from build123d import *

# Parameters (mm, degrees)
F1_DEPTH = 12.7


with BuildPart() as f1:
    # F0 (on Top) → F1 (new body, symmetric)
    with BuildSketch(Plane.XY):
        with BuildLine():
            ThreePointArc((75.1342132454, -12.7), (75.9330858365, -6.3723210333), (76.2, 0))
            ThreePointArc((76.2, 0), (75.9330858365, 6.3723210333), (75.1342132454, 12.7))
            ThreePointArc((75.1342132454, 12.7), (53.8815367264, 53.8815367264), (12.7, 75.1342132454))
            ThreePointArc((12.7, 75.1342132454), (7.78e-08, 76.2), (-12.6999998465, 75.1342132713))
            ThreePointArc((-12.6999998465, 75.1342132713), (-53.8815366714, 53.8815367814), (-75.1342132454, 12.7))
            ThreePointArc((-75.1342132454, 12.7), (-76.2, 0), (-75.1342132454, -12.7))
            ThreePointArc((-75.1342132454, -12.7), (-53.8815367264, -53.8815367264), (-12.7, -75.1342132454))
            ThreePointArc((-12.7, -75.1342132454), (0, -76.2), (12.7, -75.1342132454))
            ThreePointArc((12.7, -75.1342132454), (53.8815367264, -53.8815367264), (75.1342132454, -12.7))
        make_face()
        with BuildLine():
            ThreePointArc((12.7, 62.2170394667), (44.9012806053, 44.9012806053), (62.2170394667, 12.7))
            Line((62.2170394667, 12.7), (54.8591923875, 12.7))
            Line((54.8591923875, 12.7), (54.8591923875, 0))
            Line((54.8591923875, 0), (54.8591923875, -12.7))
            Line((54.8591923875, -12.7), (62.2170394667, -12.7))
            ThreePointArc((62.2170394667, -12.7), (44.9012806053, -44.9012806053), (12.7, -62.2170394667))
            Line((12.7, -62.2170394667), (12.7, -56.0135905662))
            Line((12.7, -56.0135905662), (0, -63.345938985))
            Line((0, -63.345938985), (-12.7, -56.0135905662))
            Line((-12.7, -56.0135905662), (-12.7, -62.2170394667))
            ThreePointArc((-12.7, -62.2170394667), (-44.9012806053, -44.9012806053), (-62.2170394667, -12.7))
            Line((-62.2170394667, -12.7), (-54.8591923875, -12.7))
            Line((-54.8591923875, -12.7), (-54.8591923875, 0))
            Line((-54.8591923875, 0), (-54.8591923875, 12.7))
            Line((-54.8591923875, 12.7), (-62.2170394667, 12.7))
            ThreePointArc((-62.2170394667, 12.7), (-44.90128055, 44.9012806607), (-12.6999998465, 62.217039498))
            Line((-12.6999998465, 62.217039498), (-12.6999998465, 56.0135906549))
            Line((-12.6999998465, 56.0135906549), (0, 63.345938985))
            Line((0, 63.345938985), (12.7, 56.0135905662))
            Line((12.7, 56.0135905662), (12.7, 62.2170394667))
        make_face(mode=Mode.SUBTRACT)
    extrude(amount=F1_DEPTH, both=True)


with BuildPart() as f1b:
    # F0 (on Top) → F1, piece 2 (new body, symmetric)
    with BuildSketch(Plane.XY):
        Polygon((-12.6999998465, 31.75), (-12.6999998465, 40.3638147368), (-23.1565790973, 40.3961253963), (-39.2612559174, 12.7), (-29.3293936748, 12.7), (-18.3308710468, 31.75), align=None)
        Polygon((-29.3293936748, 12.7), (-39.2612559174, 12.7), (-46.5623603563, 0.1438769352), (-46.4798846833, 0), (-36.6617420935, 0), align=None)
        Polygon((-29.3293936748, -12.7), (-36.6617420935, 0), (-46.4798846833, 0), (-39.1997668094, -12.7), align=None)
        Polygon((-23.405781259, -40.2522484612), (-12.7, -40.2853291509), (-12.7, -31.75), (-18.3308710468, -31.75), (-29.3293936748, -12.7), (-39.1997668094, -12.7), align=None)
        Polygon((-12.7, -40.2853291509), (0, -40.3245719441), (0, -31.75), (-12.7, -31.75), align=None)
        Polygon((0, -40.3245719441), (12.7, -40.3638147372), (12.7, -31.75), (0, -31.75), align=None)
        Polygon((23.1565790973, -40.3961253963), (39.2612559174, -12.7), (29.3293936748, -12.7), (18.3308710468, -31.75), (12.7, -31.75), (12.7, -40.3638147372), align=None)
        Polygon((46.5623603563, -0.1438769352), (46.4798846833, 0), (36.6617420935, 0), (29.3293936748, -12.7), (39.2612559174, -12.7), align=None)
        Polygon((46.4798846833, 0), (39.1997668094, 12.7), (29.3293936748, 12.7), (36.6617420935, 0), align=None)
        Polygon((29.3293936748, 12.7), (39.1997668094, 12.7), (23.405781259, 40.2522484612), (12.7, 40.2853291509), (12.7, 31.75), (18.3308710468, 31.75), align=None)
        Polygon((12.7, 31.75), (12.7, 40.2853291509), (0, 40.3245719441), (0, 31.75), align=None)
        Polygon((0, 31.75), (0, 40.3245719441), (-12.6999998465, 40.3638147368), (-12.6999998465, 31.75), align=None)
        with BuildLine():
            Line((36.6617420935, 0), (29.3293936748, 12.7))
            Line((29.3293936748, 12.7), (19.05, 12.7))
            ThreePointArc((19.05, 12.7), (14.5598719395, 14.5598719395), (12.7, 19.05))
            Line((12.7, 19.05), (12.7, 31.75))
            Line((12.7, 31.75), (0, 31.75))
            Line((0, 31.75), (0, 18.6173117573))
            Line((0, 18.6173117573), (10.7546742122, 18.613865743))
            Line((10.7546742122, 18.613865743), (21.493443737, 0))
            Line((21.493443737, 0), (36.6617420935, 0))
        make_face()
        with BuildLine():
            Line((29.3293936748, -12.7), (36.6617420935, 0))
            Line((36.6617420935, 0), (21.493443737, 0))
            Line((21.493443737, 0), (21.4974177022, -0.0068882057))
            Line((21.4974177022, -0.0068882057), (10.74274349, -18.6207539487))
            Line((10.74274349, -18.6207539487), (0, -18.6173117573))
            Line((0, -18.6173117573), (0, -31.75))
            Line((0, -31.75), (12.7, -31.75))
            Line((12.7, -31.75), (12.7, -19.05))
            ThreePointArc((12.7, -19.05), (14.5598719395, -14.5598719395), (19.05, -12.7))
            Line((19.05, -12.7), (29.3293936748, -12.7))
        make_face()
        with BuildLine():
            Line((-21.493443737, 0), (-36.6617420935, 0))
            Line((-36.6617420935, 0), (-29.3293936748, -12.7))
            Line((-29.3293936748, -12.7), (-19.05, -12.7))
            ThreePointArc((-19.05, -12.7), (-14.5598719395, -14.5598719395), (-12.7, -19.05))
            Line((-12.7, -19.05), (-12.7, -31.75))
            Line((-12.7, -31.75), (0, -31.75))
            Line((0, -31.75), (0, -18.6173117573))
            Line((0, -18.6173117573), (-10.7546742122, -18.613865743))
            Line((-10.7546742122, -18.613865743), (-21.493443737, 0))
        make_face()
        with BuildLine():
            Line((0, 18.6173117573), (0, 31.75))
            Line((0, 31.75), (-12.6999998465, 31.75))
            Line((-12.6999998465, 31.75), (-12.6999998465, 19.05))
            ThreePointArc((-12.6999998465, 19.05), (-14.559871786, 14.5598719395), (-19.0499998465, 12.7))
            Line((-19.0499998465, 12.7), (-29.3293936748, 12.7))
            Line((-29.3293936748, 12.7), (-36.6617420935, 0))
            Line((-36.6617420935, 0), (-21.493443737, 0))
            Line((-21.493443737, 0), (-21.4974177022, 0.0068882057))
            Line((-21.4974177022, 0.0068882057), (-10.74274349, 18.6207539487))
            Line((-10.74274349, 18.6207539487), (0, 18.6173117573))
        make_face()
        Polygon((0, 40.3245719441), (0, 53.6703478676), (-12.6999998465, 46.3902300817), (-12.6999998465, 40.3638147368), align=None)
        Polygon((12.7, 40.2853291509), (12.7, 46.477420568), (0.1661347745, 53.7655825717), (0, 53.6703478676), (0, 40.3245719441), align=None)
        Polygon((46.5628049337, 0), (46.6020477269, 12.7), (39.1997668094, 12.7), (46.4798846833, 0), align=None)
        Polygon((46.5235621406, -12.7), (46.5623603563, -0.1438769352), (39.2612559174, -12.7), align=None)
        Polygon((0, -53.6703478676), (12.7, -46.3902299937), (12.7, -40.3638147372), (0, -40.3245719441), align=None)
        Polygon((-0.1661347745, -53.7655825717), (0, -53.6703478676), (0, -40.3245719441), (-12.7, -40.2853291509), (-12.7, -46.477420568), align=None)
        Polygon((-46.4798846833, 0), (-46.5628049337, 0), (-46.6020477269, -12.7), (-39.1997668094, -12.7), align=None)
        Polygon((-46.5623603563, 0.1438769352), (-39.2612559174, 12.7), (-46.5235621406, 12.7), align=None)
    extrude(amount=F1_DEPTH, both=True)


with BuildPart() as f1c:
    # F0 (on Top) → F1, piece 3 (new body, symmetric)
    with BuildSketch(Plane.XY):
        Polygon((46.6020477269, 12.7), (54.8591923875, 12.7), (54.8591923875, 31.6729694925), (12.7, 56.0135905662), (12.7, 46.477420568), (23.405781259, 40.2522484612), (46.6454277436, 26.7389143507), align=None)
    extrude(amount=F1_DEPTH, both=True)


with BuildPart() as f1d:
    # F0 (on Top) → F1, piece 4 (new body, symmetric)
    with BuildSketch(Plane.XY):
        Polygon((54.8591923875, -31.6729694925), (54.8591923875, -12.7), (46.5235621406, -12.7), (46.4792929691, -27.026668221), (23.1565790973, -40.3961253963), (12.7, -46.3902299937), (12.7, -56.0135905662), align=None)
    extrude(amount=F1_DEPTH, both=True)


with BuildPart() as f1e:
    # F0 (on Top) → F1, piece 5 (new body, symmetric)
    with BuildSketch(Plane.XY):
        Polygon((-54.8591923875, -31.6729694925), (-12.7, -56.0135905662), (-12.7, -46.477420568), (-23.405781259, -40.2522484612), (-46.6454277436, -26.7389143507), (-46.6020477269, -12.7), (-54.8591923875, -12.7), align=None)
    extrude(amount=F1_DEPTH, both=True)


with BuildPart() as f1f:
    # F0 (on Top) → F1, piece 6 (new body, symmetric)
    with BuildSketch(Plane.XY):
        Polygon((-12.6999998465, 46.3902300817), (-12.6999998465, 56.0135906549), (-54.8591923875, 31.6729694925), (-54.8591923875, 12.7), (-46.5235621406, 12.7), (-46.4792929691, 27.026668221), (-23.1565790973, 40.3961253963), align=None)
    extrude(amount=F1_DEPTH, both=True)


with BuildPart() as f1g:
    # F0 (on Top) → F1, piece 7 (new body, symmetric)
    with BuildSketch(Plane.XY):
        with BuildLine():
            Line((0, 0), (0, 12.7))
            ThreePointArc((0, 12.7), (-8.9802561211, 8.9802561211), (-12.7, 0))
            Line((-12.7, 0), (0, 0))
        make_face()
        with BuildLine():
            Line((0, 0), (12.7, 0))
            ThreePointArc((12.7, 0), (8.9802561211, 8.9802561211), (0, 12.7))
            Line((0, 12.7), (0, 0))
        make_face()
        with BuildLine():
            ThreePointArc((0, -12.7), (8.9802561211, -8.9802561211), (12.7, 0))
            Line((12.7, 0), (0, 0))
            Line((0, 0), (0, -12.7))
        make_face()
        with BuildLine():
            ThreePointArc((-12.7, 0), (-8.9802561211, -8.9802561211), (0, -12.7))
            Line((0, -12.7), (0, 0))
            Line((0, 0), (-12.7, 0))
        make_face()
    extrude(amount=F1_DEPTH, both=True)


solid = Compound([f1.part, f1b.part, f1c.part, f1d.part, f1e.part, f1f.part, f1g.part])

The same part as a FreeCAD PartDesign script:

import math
import FreeCAD as App
import Part
import Sketcher

V = App.Vector
Q = App.Units.Quantity

doc = App.newDocument("Part")
body = doc.addObject("PartDesign::Body", "Body")

sketch1 = body.newObject("Sketcher::SketchObject", "Sketch")
sketch1.AttachmentSupport = (doc.getObject("XY_Plane"), [""])
sketch1.MapMode = "FlatFace"
sketch1.addGeometry([
    Part.ArcOfCircle(Part.Circle(V(0, 0, 0), V(0, 0, 1), 76), math.radians(0), math.radians(80)),
    Part.ArcOfCircle(Part.Circle(V(0, 0, 0), V(0, 0, 1), 76), math.radians(80), math.radians(170)),
    Part.ArcOfCircle(Part.Circle(V(0, 0, 0), V(0, 0, 1), 76), math.radians(170.41), math.radians(189.59)),
    Part.ArcOfCircle(Part.Circle(V(0, 0, 0), V(0, 0, 1), 76), math.radians(-170), math.radians(-100)),
    Part.ArcOfCircle(Part.Circle(V(0, 0, 0), V(0, 0, 1), 76), math.radians(-99.59), math.radians(-80.41)),
    Part.ArcOfCircle(Part.Circle(V(0, 0, 0), V(0, 0, 1), 76), math.radians(-80), math.radians(0)),
    Part.LineSegment(V(13, 56, 0), V(13, 62, 0)),
    Part.ArcOfCircle(Part.Circle(V(0, 0, 0), V(0, 0, 1), 64), math.radians(12), math.radians(78)),
    Part.LineSegment(V(62, 13, 0), V(55, 13, 0)),
    Part.LineSegment(V(55, 13, 0), V(55, -13, 0)),
    Part.LineSegment(V(55, -13, 0), V(62, -13, 0)),
    Part.ArcOfCircle(Part.Circle(V(0, 0, 0), V(0, 0, 1), 64), math.radians(-78), math.radians(-12)),
    Part.LineSegment(V(13, -62, 0), V(13, -56, 0)),
    Part.LineSegment(V(13, -56, 0), V(0, -63, 0)),
    Part.LineSegment(V(0, -63, 0), V(-13, -56, 0)),
    Part.LineSegment(V(-13, -56, 0), V(-13, -62, 0)),
    Part.ArcOfCircle(Part.Circle(V(0, 0, 0), V(0, 0, 1), 64), math.radians(-168), math.radians(-102)),
    Part.LineSegment(V(-62, -13, 0), V(-55, -13, 0)),
    Part.LineSegment(V(-55, -13, 0), V(-55, 13, 0)),
    Part.LineSegment(V(-55, 13, 0), V(-62, 13, 0)),
    Part.ArcOfCircle(Part.Circle(V(0, 0, 0), V(0, 0, 1), 64), math.radians(102), math.radians(168)),
    Part.LineSegment(V(-13, 62, 0), V(-13, 56, 0)),
    Part.LineSegment(V(-13, 56, 0), V(0, 63, 0)),
    Part.LineSegment(V(0, 63, 0), V(13, 56, 0)),
], False)
sketch1.addConstraint([
    Sketcher.Constraint("Tangent", 0, 2, 1, 1),
    Sketcher.Constraint("Tangent", 1, 2, 2, 1),
    Sketcher.Constraint("Tangent", 2, 2, 3, 1),
    Sketcher.Constraint("Tangent", 3, 2, 4, 1),
    Sketcher.Constraint("Tangent", 4, 2, 5, 1),
    Sketcher.Constraint("Tangent", 5, 2, 0, 1),
    Sketcher.Constraint("Coincident", 6, 2, 7, 2),
    Sketcher.Constraint("Coincident", 7, 1, 8, 1),
    Sketcher.Constraint("Coincident", 8, 2, 9, 1),
    Sketcher.Constraint("Coincident", 9, 2, 10, 1),
    Sketcher.Constraint("Coincident", 10, 2, 11, 2),
    Sketcher.Constraint("Coincident", 11, 1, 12, 1),
    Sketcher.Constraint("Coincident", 12, 2, 13, 1),
    Sketcher.Constraint("Coincident", 13, 2, 14, 1),
    Sketcher.Constraint("Coincident", 14, 2, 15, 1),
    Sketcher.Constraint("Coincident", 15, 2, 16, 2),
    Sketcher.Constraint("Coincident", 16, 1, 17, 1),
    Sketcher.Constraint("Coincident", 17, 2, 18, 1),
    Sketcher.Constraint("Coincident", 18, 2, 19, 1),
    Sketcher.Constraint("Coincident", 19, 2, 20, 2),
    Sketcher.Constraint("Coincident", 20, 1, 21, 1),
    Sketcher.Constraint("Coincident", 21, 2, 22, 1),
    Sketcher.Constraint("Coincident", 22, 2, 23, 1),
    Sketcher.Constraint("Coincident", 23, 2, 6, 1),
    Sketcher.Constraint("Vertical", 6),
    Sketcher.Constraint("Horizontal", 8),
    Sketcher.Constraint("Vertical", 9),
    Sketcher.Constraint("Horizontal", 10),
    Sketcher.Constraint("Vertical", 12),
    Sketcher.Constraint("Vertical", 15),
    Sketcher.Constraint("Horizontal", 17),
    Sketcher.Constraint("Vertical", 18),
    Sketcher.Constraint("Horizontal", 19),
    Sketcher.Constraint("Vertical", 21),
    Sketcher.Constraint("Coincident", 0, 3, -1, 1),
    Sketcher.Constraint("Coincident", 2, 3, -1, 1),
    Sketcher.Constraint("Coincident", 7, 3, -1, 1),
    Sketcher.Constraint("Coincident", 11, 3, -1, 1),
    Sketcher.Constraint("Coincident", 16, 3, -1, 1),
    Sketcher.Constraint("Coincident", 20, 3, -1, 1),
    Sketcher.Constraint("Equal", 2, 3),
    Sketcher.Constraint("Equal", 7, 11),
    Sketcher.Constraint("Equal", 11, 16),
    Sketcher.Constraint("Equal", 16, 20),
    Sketcher.Constraint("Symmetric", 8, 2, 17, 2, -1, 1),
    Sketcher.Constraint("Symmetric", 12, 2, 21, 2, -1, 1),
    Sketcher.Constraint("Symmetric", 13, 2, 22, 2, -1, 1),
    Sketcher.Constraint("Symmetric", 14, 2, 23, 2, -1, 1),
    Sketcher.Constraint("Symmetric", 12, 2, 14, 2, -2),
    Sketcher.Constraint("PointOnObject", 5, 2, -1),
    Sketcher.Constraint("PointOnObject", 13, 2, -2),
    Sketcher.Constraint("Horizontal", 3, 2, 4, 2),
    Sketcher.Constraint("Horizontal", 1, 2, 7, 1),
    Sketcher.Constraint("Horizontal", 2, 2, 9, 2),
    Sketcher.Constraint("Horizontal", 10, 2, 16, 1),
    Sketcher.Constraint("Horizontal", 8, 2, 18, 2),
    Sketcher.Constraint("Vertical", 0, 2, 4, 2),
    Sketcher.Constraint("Vertical", 4, 2, 6, 2),
    Sketcher.Constraint("Radius", 0, Q("3 in")),
    Sketcher.Constraint("Radius", 7, Q("2.5 in")),
    Sketcher.Constraint("DistanceY", 9, 2, 9, 1, Q("1 in")),
    Sketcher.Constraint("Angle", 13, Q("-150 deg")),
    Sketcher.Constraint("DistanceX", 3, 2, 4, 2, Q("1 in")),
    Sketcher.Constraint("DistanceY", 6, 1, 6, 2, Q("6.203449 mm")),
    Sketcher.Constraint("DistanceX", 8, 2, 8, 1, Q("7.357847 mm")),
])
pad1 = body.newObject("PartDesign::Pad", "Pad")
pad1.Profile = sketch1
pad1.Length = Q("1 in")
pad1.Midplane = True
body2 = doc.addObject("PartDesign::Body", "Body001")

sketch2 = body2.newObject("Sketcher::SketchObject", "Sketch001")
sketch2.AttachmentSupport = (doc.getObject("XY_Plane001"), [""])
sketch2.MapMode = "FlatFace"
sketch2.addGeometry([
    Part.LineSegment(V(-12.7, 40.364, 0), V(-23.157, 40.396, 0)),
    Part.LineSegment(V(-23.157, 40.396, 0), V(-39.261, 12.7, 0)),
    Part.LineSegment(V(-39.261, 12.7, 0), V(-46.524, 12.7, 0)),
    Part.LineSegment(V(-46.524, 12.7, 0), V(-46.562, 0.144, 0)),
    Part.LineSegment(V(-46.562, 0.144, 0), V(-46.48, 0, 0)),
    Part.LineSegment(V(-46.48, 0, 0), V(-46.563, 0, 0)),
    Part.LineSegment(V(-46.563, 0, 0), V(-46.602, -12.7, 0)),
    Part.LineSegment(V(-46.602, -12.7, 0), V(-39.2, -12.7, 0)),
    Part.LineSegment(V(-39.2, -12.7, 0), V(-23.406, -40.252, 0)),
    Part.LineSegment(V(-23.406, -40.252, 0), V(-12.7, -40.285, 0)),
    Part.LineSegment(V(-12.7, -40.285, 0), V(-12.7, -46.477, 0)),
    Part.LineSegment(V(-12.7, -46.477, 0), V(-0.166, -53.766, 0)),
    Part.LineSegment(V(-0.166, -53.766, 0), V(0, -53.67, 0)),
    Part.LineSegment(V(0, -53.67, 0), V(12.7, -46.39, 0)),
    Part.LineSegment(V(12.7, -46.39, 0), V(12.7, -40.364, 0)),
    Part.LineSegment(V(12.7, -40.364, 0), V(23.157, -40.396, 0)),
    Part.LineSegment(V(23.157, -40.396, 0), V(39.261, -12.7, 0)),
    Part.LineSegment(V(39.261, -12.7, 0), V(46.524, -12.7, 0)),
    Part.LineSegment(V(46.524, -12.7, 0), V(46.562, -0.144, 0)),
    Part.LineSegment(V(46.562, -0.144, 0), V(46.48, 0, 0)),
    Part.LineSegment(V(46.48, 0, 0), V(46.563, 0, 0)),
    Part.LineSegment(V(46.563, 0, 0), V(46.602, 12.7, 0)),
    Part.LineSegment(V(46.602, 12.7, 0), V(39.2, 12.7, 0)),
    Part.LineSegment(V(39.2, 12.7, 0), V(23.406, 40.252, 0)),
    Part.LineSegment(V(23.406, 40.252, 0), V(12.7, 40.285, 0)),
    Part.LineSegment(V(12.7, 40.285, 0), V(12.7, 46.477, 0)),
    Part.LineSegment(V(12.7, 46.477, 0), V(0.166, 53.766, 0)),
    Part.LineSegment(V(0.166, 53.766, 0), V(0, 53.67, 0)),
    Part.LineSegment(V(0, 53.67, 0), V(-12.7, 46.39, 0)),
    Part.LineSegment(V(-12.7, 46.39, 0), V(-12.7, 40.364, 0)),
    Part.LineSegment(V(18.331, 31.75, 0), V(29.329, 12.7, 0)),
    Part.LineSegment(V(29.329, 12.7, 0), V(19.05, 12.7, 0)),
    Part.ArcOfCircle(Part.Circle(V(19.05, 19.05, 0), V(0, 0, 1), 6.35), math.radians(180), math.radians(270)),
    Part.LineSegment(V(12.7, 19.05, 0), V(12.7, 31.75, 0)),
    Part.LineSegment(V(12.7, 31.75, 0), V(18.331, 31.75, 0)),
    Part.LineSegment(V(29.329, -12.7, 0), V(18.331, -31.75, 0)),
    Part.LineSegment(V(18.331, -31.75, 0), V(12.7, -31.75, 0)),
    Part.LineSegment(V(12.7, -31.75, 0), V(12.7, -19.05, 0)),
    Part.ArcOfCircle(Part.Circle(V(19.05, -19.05, 0), V(0, 0, 1), 6.35), math.radians(90), math.radians(180)),
    Part.LineSegment(V(19.05, -12.7, 0), V(29.329, -12.7, 0)),
    Part.LineSegment(V(-12.7, -31.75, 0), V(-18.331, -31.75, 0)),
    Part.LineSegment(V(-18.331, -31.75, 0), V(-29.329, -12.7, 0)),
    Part.LineSegment(V(-29.329, -12.7, 0), V(-19.05, -12.7, 0)),
    Part.ArcOfCircle(Part.Circle(V(-19.05, -19.05, 0), V(0, 0, 1), 6.35), math.radians(0), math.radians(90)),
    Part.LineSegment(V(-12.7, -19.05, 0), V(-12.7, -31.75, 0)),
    Part.LineSegment(V(-29.329, 12.7, 0), V(-18.331, 31.75, 0)),
    Part.LineSegment(V(-18.331, 31.75, 0), V(-12.7, 31.75, 0)),
    Part.LineSegment(V(-12.7, 31.75, 0), V(-12.7, 19.05, 0)),
    Part.ArcOfCircle(Part.Circle(V(-19.05, 19.05, 0), V(0, 0, 1), 6.35), math.radians(-90), math.radians(0)),
    Part.LineSegment(V(-19.05, 12.7, 0), V(-29.329, 12.7, 0)),
    Part.LineSegment(V(0, 18.617, 0), V(10.755, 18.614, 0)),
    Part.LineSegment(V(10.755, 18.614, 0), V(21.493, 0, 0)),
    Part.LineSegment(V(21.493, 0, 0), V(21.497, -0.007, 0)),
    Part.LineSegment(V(21.497, -0.007, 0), V(10.743, -18.621, 0)),
    Part.LineSegment(V(10.743, -18.621, 0), V(0, -18.617, 0)),
    Part.LineSegment(V(0, -18.617, 0), V(-10.755, -18.614, 0)),
    Part.LineSegment(V(-10.755, -18.614, 0), V(-21.493, 0, 0)),
    Part.LineSegment(V(-21.493, 0, 0), V(-21.497, 0.007, 0)),
    Part.LineSegment(V(-21.497, 0.007, 0), V(-10.743, 18.621, 0)),
    Part.LineSegment(V(-10.743, 18.621, 0), V(0, 18.617, 0)),
], False)
sketch2.addConstraint([
    Sketcher.Constraint("Coincident", 0, 2, 1, 1),
    Sketcher.Constraint("Coincident", 1, 2, 2, 1),
    Sketcher.Constraint("Coincident", 2, 2, 3, 1),
    Sketcher.Constraint("Coincident", 3, 2, 4, 1),
    Sketcher.Constraint("Coincident", 4, 2, 5, 1),
    Sketcher.Constraint("Coincident", 5, 2, 6, 1),
    Sketcher.Constraint("Coincident", 6, 2, 7, 1),
    Sketcher.Constraint("Coincident", 7, 2, 8, 1),
    Sketcher.Constraint("Coincident", 8, 2, 9, 1),
    Sketcher.Constraint("Coincident", 9, 2, 10, 1),
    Sketcher.Constraint("Coincident", 10, 2, 11, 1),
    Sketcher.Constraint("Coincident", 11, 2, 12, 1),
    Sketcher.Constraint("Coincident", 12, 2, 13, 1),
    Sketcher.Constraint("Coincident", 13, 2, 14, 1),
    Sketcher.Constraint("Coincident", 14, 2, 15, 1),
    Sketcher.Constraint("Coincident", 15, 2, 16, 1),
    Sketcher.Constraint("Coincident", 16, 2, 17, 1),
    Sketcher.Constraint("Coincident", 17, 2, 18, 1),
    Sketcher.Constraint("Coincident", 18, 2, 19, 1),
    Sketcher.Constraint("Coincident", 19, 2, 20, 1),
    Sketcher.Constraint("Coincident", 20, 2, 21, 1),
    Sketcher.Constraint("Coincident", 21, 2, 22, 1),
    Sketcher.Constraint("Coincident", 22, 2, 23, 1),
    Sketcher.Constraint("Coincident", 23, 2, 24, 1),
    Sketcher.Constraint("Coincident", 24, 2, 25, 1),
    Sketcher.Constraint("Coincident", 25, 2, 26, 1),
    Sketcher.Constraint("Coincident", 26, 2, 27, 1),
    Sketcher.Constraint("Coincident", 27, 2, 28, 1),
    Sketcher.Constraint("Coincident", 28, 2, 29, 1),
    Sketcher.Constraint("Coincident", 29, 2, 0, 1),
    Sketcher.Constraint("Coincident", 30, 2, 31, 1),
    Sketcher.Constraint("Tangent", 31, 2, 32, 2),
    Sketcher.Constraint("Tangent", 32, 1, 33, 1),
    Sketcher.Constraint("Coincident", 33, 2, 34, 1),
    Sketcher.Constraint("Coincident", 34, 2, 30, 1),
    Sketcher.Constraint("Coincident", 35, 2, 36, 1),
    Sketcher.Constraint("Coincident", 36, 2, 37, 1),
    Sketcher.Constraint("Tangent", 37, 2, 38, 2),
    Sketcher.Constraint("Tangent", 38, 1, 39, 1),
    Sketcher.Constraint("Coincident", 39, 2, 35, 1),
    Sketcher.Constraint("Coincident", 40, 2, 41, 1),
    Sketcher.Constraint("Coincident", 41, 2, 42, 1),
    Sketcher.Constraint("Tangent", 42, 2, 43, 2),
    Sketcher.Constraint("Tangent", 43, 1, 44, 1),
    Sketcher.Constraint("Coincident", 44, 2, 40, 1),
    Sketcher.Constraint("Coincident", 45, 2, 46, 1),
    Sketcher.Constraint("Coincident", 46, 2, 47, 1),
    Sketcher.Constraint("Tangent", 47, 2, 48, 2),
    Sketcher.Constraint("Tangent", 48, 1, 49, 1),
    Sketcher.Constraint("Coincident", 49, 2, 45, 1),
    Sketcher.Constraint("Coincident", 50, 2, 51, 1),
    Sketcher.Constraint("Coincident", 51, 2, 52, 1),
    Sketcher.Constraint("Coincident", 52, 2, 53, 1),
    Sketcher.Constraint("Coincident", 53, 2, 54, 1),
    Sketcher.Constraint("Coincident", 54, 2, 55, 1),
    Sketcher.Constraint("Coincident", 55, 2, 56, 1),
    Sketcher.Constraint("Coincident", 56, 2, 57, 1),
    Sketcher.Constraint("Coincident", 57, 2, 58, 1),
    Sketcher.Constraint("Coincident", 58, 2, 59, 1),
    Sketcher.Constraint("Coincident", 59, 2, 50, 1),
    Sketcher.Constraint("Horizontal", 2),
    Sketcher.Constraint("Horizontal", 5),
    Sketcher.Constraint("Horizontal", 7),
    Sketcher.Constraint("Vertical", 10),
    Sketcher.Constraint("Vertical", 14),
    Sketcher.Constraint("Horizontal", 17),
    Sketcher.Constraint("Horizontal", 20),
    Sketcher.Constraint("Horizontal", 22),
    Sketcher.Constraint("Vertical", 25),
    Sketcher.Constraint("Vertical", 29),
    Sketcher.Constraint("Horizontal", 31),
    Sketcher.Constraint("Vertical", 33),
    Sketcher.Constraint("Horizontal", 34),
    Sketcher.Constraint("Horizontal", 36),
    Sketcher.Constraint("Vertical", 37),
    Sketcher.Constraint("Horizontal", 39),
    Sketcher.Constraint("Horizontal", 40),
    Sketcher.Constraint("Horizontal", 42),
    Sketcher.Constraint("Vertical", 44),
    Sketcher.Constraint("Horizontal", 46),
    Sketcher.Constraint("Vertical", 47),
    Sketcher.Constraint("Horizontal", 49),
    Sketcher.Constraint("Equal", 32, 38),
    Sketcher.Constraint("Equal", 38, 43),
    Sketcher.Constraint("Equal", 43, 48),
    Sketcher.Constraint("Symmetric", 32, 3, 43, 3, -1, 1),
    Sketcher.Constraint("Symmetric", 38, 3, 48, 3, -1, 1),
    Sketcher.Constraint("Symmetric", 0, 2, 15, 2, -1, 1),
    Sketcher.Constraint("Symmetric", 1, 2, 16, 2, -1, 1),
    Sketcher.Constraint("Symmetric", 3, 2, 18, 2, -1, 1),
    Sketcher.Constraint("Symmetric", 4, 2, 19, 2, -1, 1),
    Sketcher.Constraint("Symmetric", 6, 2, 21, 2, -1, 1),
    Sketcher.Constraint("Symmetric", 8, 2, 23, 2, -1, 1),
    Sketcher.Constraint("Symmetric", 9, 2, 24, 2, -1, 1),
    Sketcher.Constraint("Symmetric", 11, 2, 26, 2, -1, 1),
    Sketcher.Constraint("Symmetric", 12, 2, 27, 2, -1, 1),
    Sketcher.Constraint("Symmetric", 13, 2, 28, 2, -1, 1),
    Sketcher.Constraint("Symmetric", 34, 2, 40, 2, -1, 1),
    Sketcher.Constraint("Symmetric", 35, 2, 45, 2, -1, 1),
    Sketcher.Constraint("Symmetric", 50, 2, 55, 2, -1, 1),
    Sketcher.Constraint("Symmetric", 51, 2, 56, 2, -1, 1),
    Sketcher.Constraint("Symmetric", 52, 2, 57, 2, -1, 1),
    Sketcher.Constraint("Symmetric", 53, 2, 58, 2, -1, 1),
    Sketcher.Constraint("Symmetric", 54, 2, 59, 2, -1, 1),
    Sketcher.Constraint("Symmetric", 38, 3, 43, 3, -2),
    Sketcher.Constraint("Symmetric", 5, 2, 20, 2, -2),
    Sketcher.Constraint("Symmetric", 35, 2, 40, 2, -2),
    Sketcher.Constraint("PointOnObject", 12, 2, -2),
    Sketcher.Constraint("PointOnObject", 51, 2, -1),
    Sketcher.Constraint("PointOnObject", 54, 2, -2),
    Sketcher.Constraint("Perpendicular", 0, 3),
    Sketcher.Constraint("Parallel", 3, 6),
    Sketcher.Constraint("Parallel", 4, 8),
    Sketcher.Constraint("Perpendicular", 6, 9),
    Sketcher.Constraint("Perpendicular", 1, 11),
    Sketcher.Constraint("Perpendicular", 8, 12),
    Sketcher.Constraint("Parallel", 12, 13),
    Sketcher.Constraint("Parallel", 9, 15),
    Sketcher.Constraint("Perpendicular", 15, 18),
    Sketcher.Constraint("Parallel", 19, 23),
    Sketcher.Constraint("Perpendicular", 16, 26),
    Sketcher.Constraint("Parallel", 30, 41),
    Sketcher.Constraint("Parallel", 35, 45),
    Sketcher.Constraint("Parallel", 51, 52),
    Sketcher.Constraint("Parallel", 50, 54),
    Sketcher.Constraint("Horizontal", 7, 2, 16, 2),
    Sketcher.Constraint("Horizontal", 22, 2, 30, 2),
    Sketcher.Constraint("Vertical", 14, 2, 24, 2),
    Sketcher.Constraint("Vertical", 25, 2, 32, 1),
    Sketcher.Constraint("Vertical", 30, 2, 39, 2),
    Sketcher.Constraint("Radius", 32, Q("0.25 in")),
    Sketcher.Constraint("DistanceY", 33, 1, 33, 2, Q("0.5 in")),
    Sketcher.Constraint("Angle", 30, Q("-60 deg")),
    Sketcher.Constraint("DistanceY", -1, 1, 1, 2, Q("0.5 in")),
    Sketcher.Constraint("DistanceX", 9, 2, -1, 1, Q("0.5 in")),
    Sketcher.Constraint("DistanceX", 5, 2, 5, 1, Q("0.08292 mm")),
    Sketcher.Constraint("DistanceX", 7, 1, 7, 2, Q("7.402281 mm")),
    Sketcher.Constraint("DistanceX", 34, 1, 34, 2, Q("5.630871 mm")),
    Sketcher.Constraint("DistanceY", 10, 2, 10, 1, Q("6.192091 mm")),
    Sketcher.Constraint("Distance", 0, Q("10.456629 mm")),
    Sketcher.Constraint("Distance", 1, Q("32.03804 mm")),
    Sketcher.Constraint("Distance", 4, Q("0.16584 mm")),
    Sketcher.Constraint("Distance", 8, Q("31.758091 mm")),
    Sketcher.Constraint("Distance", 13, Q("14.638651 mm")),
    Sketcher.Constraint("Distance", 53, Q("21.497419 mm")),
    Sketcher.Constraint("DistanceX", 2, 2, 2, 1, Q("7.262306 mm")),
    Sketcher.Constraint("DistanceY", 14, 1, 14, 2, Q("6.026415 mm")),
    Sketcher.Constraint("DistanceX", 3, 2, -1, 1, Q("46.56236 mm")),
    Sketcher.Constraint("DistanceX", 8, 2, -1, 1, Q("23.405781 mm")),
    Sketcher.Constraint("DistanceY", 52, 2, -1, 1, Q("0.006888 mm")),
    Sketcher.Constraint("DistanceY", 54, 2, -1, 1, Q("18.617312 mm")),
    Sketcher.Constraint("Distance", 50, Q("10.754675 mm")),
    Sketcher.Constraint("Distance", 51, Q("21.489466 mm")),
    Sketcher.Constraint("Distance", 54, Q("10.742744 mm")),
])
pad2 = body2.newObject("PartDesign::Pad", "Pad001")
pad2.Profile = sketch2
pad2.Length = Q("1 in")
pad2.Midplane = True
body3 = doc.addObject("PartDesign::Body", "Body002")

sketch3 = body3.newObject("Sketcher::SketchObject", "Sketch002")
sketch3.AttachmentSupport = (doc.getObject("XY_Plane002"), [""])
sketch3.MapMode = "FlatFace"
sketch3.addGeometry([
    Part.LineSegment(V(47, 13, 0), V(55, 13, 0)),
    Part.LineSegment(V(55, 13, 0), V(55, 32, 0)),
    Part.LineSegment(V(55, 32, 0), V(13, 56, 0)),
    Part.LineSegment(V(13, 56, 0), V(13, 46, 0)),
    Part.LineSegment(V(13, 46, 0), V(23, 40, 0)),
    Part.LineSegment(V(23, 40, 0), V(47, 27, 0)),
    Part.LineSegment(V(47, 27, 0), V(47, 13, 0)),
], False)
sketch3.addConstraint([
    Sketcher.Constraint("Coincident", 0, 2, 1, 1),
    Sketcher.Constraint("Coincident", 1, 2, 2, 1),
    Sketcher.Constraint("Coincident", 2, 2, 3, 1),
    Sketcher.Constraint("Coincident", 3, 2, 4, 1),
    Sketcher.Constraint("Coincident", 4, 2, 5, 1),
    Sketcher.Constraint("Coincident", 5, 2, 6, 1),
    Sketcher.Constraint("Coincident", 6, 2, 0, 1),
    Sketcher.Constraint("Horizontal", 0),
    Sketcher.Constraint("Vertical", 1),
    Sketcher.Constraint("Vertical", 3),
    Sketcher.Constraint("Parallel", 4, 5),
    Sketcher.Constraint("Angle", 2, Q("150 deg")),
    Sketcher.Constraint("DistanceY", -1, 1, 0, 2, Q("0.5 in")),
    Sketcher.Constraint("DistanceX", -1, 1, 2, 2, Q("0.5 in")),
    Sketcher.Constraint("DistanceY", 1, 1, 1, 2, Q("18.972969 mm")),
    Sketcher.Constraint("DistanceY", 3, 2, 3, 1, Q("9.53617 mm")),
    Sketcher.Constraint("Distance", 5, Q("26.88292 mm")),
    Sketcher.Constraint("Distance", 6, Q("14.038981 mm")),
    Sketcher.Constraint("DistanceX", 0, 1, 0, 2, Q("8.257145 mm")),
    Sketcher.Constraint("DistanceY", -1, 1, 2, 2, Q("56.013591 mm")),
    Sketcher.Constraint("DistanceX", -1, 1, 4, 2, Q("23.405781 mm")),
])
pad3 = body3.newObject("PartDesign::Pad", "Pad002")
pad3.Profile = sketch3
pad3.Length = Q("1 in")
pad3.Midplane = True
body4 = doc.addObject("PartDesign::Body", "Body003")

sketch4 = body4.newObject("Sketcher::SketchObject", "Sketch003")
sketch4.AttachmentSupport = (doc.getObject("XY_Plane003"), [""])
sketch4.MapMode = "FlatFace"
sketch4.addGeometry([
    Part.LineSegment(V(55, -32, 0), V(55, -13, 0)),
    Part.LineSegment(V(55, -13, 0), V(47, -13, 0)),
    Part.LineSegment(V(47, -13, 0), V(46, -27, 0)),
    Part.LineSegment(V(46, -27, 0), V(23, -40, 0)),
    Part.LineSegment(V(23, -40, 0), V(13, -46, 0)),
    Part.LineSegment(V(13, -46, 0), V(13, -56, 0)),
    Part.LineSegment(V(13, -56, 0), V(55, -32, 0)),
], False)
sketch4.addConstraint([
    Sketcher.Constraint("Coincident", 0, 2, 1, 1),
    Sketcher.Constraint("Coincident", 1, 2, 2, 1),
    Sketcher.Constraint("Coincident", 2, 2, 3, 1),
    Sketcher.Constraint("Coincident", 3, 2, 4, 1),
    Sketcher.Constraint("Coincident", 4, 2, 5, 1),
    Sketcher.Constraint("Coincident", 5, 2, 6, 1),
    Sketcher.Constraint("Coincident", 6, 2, 0, 1),
    Sketcher.Constraint("Vertical", 0),
    Sketcher.Constraint("Horizontal", 1),
    Sketcher.Constraint("Vertical", 5),
    Sketcher.Constraint("Parallel", 3, 4),
    Sketcher.Constraint("Angle", 6, Q("30 deg")),
    Sketcher.Constraint("DistanceY", 0, 2, -1, 1, Q("0.5 in")),
    Sketcher.Constraint("DistanceX", -1, 1, 4, 2, Q("0.5 in")),
    Sketcher.Constraint("DistanceX", 1, 2, 1, 1, Q("8.33563 mm")),
    Sketcher.Constraint("DistanceY", 0, 1, 0, 2, Q("18.972969 mm")),
    Sketcher.Constraint("DistanceY", 5, 2, 5, 1, Q("9.623361 mm")),
    Sketcher.Constraint("DistanceX", 2, 2, 0, 2, Q("8.379899 mm")),
    Sketcher.Constraint("DistanceY", 6, 2, 2, 2, Q("4.646301 mm")),
    Sketcher.Constraint("Distance", 3, Q("26.88292 mm")),
    Sketcher.Constraint("DistanceX", -1, 1, 3, 2, Q("23.156579 mm")),
])
pad4 = body4.newObject("PartDesign::Pad", "Pad003")
pad4.Profile = sketch4
pad4.Length = Q("1 in")
pad4.Midplane = True
body5 = doc.addObject("PartDesign::Body", "Body004")

sketch5 = body5.newObject("Sketcher::SketchObject", "Sketch004")
sketch5.AttachmentSupport = (doc.getObject("XY_Plane004"), [""])
sketch5.MapMode = "FlatFace"
sketch5.addGeometry([
    Part.LineSegment(V(-55, -32, 0), V(-13, -56, 0)),
    Part.LineSegment(V(-13, -56, 0), V(-13, -46, 0)),
    Part.LineSegment(V(-13, -46, 0), V(-23, -40, 0)),
    Part.LineSegment(V(-23, -40, 0), V(-47, -27, 0)),
    Part.LineSegment(V(-47, -27, 0), V(-47, -13, 0)),
    Part.LineSegment(V(-47, -13, 0), V(-55, -13, 0)),
    Part.LineSegment(V(-55, -13, 0), V(-55, -32, 0)),
], False)
sketch5.addConstraint([
    Sketcher.Constraint("Coincident", 0, 2, 1, 1),
    Sketcher.Constraint("Coincident", 1, 2, 2, 1),
    Sketcher.Constraint("Coincident", 2, 2, 3, 1),
    Sketcher.Constraint("Coincident", 3, 2, 4, 1),
    Sketcher.Constraint("Coincident", 4, 2, 5, 1),
    Sketcher.Constraint("Coincident", 5, 2, 6, 1),
    Sketcher.Constraint("Coincident", 6, 2, 0, 1),
    Sketcher.Constraint("Vertical", 1),
    Sketcher.Constraint("Horizontal", 5),
    Sketcher.Constraint("Vertical", 6),
    Sketcher.Constraint("Parallel", 2, 3),
    Sketcher.Constraint("Angle", 0, Q("-30 deg")),
    Sketcher.Constraint("DistanceX", 0, 2, -1, 1, Q("0.5 in")),
    Sketcher.Constraint("DistanceY", 4, 2, -1, 1, Q("0.5 in")),
    Sketcher.Constraint("DistanceY", 1, 1, 1, 2, Q("9.53617 mm")),
    Sketcher.Constraint("DistanceY", 6, 2, 6, 1, Q("18.972969 mm")),
    Sketcher.Constraint("Distance", 3, Q("26.88292 mm")),
    Sketcher.Constraint("Distance", 4, Q("14.038981 mm")),
    Sketcher.Constraint("DistanceX", 5, 2, 5, 1, Q("8.257145 mm")),
    Sketcher.Constraint("DistanceY", 0, 2, -1, 1, Q("56.013591 mm")),
    Sketcher.Constraint("DistanceX", 2, 2, -1, 1, Q("23.405781 mm")),
])
pad5 = body5.newObject("PartDesign::Pad", "Pad004")
pad5.Profile = sketch5
pad5.Length = Q("1 in")
pad5.Midplane = True
body6 = doc.addObject("PartDesign::Body", "Body005")

sketch6 = body6.newObject("Sketcher::SketchObject", "Sketch005")
sketch6.AttachmentSupport = (doc.getObject("XY_Plane005"), [""])
sketch6.MapMode = "FlatFace"
sketch6.addGeometry([
    Part.LineSegment(V(-13, 46, 0), V(-13, 56, 0)),
    Part.LineSegment(V(-13, 56, 0), V(-55, 32, 0)),
    Part.LineSegment(V(-55, 32, 0), V(-55, 13, 0)),
    Part.LineSegment(V(-55, 13, 0), V(-47, 13, 0)),
    Part.LineSegment(V(-47, 13, 0), V(-46, 27, 0)),
    Part.LineSegment(V(-46, 27, 0), V(-23, 40, 0)),
    Part.LineSegment(V(-23, 40, 0), V(-13, 46, 0)),
], False)
sketch6.addConstraint([
    Sketcher.Constraint("Coincident", 0, 2, 1, 1),
    Sketcher.Constraint("Coincident", 1, 2, 2, 1),
    Sketcher.Constraint("Coincident", 2, 2, 3, 1),
    Sketcher.Constraint("Coincident", 3, 2, 4, 1),
    Sketcher.Constraint("Coincident", 4, 2, 5, 1),
    Sketcher.Constraint("Coincident", 5, 2, 6, 1),
    Sketcher.Constraint("Coincident", 6, 2, 0, 1),
    Sketcher.Constraint("Vertical", 0),
    Sketcher.Constraint("Vertical", 2),
    Sketcher.Constraint("Horizontal", 3),
    Sketcher.Constraint("Parallel", 5, 6),
    Sketcher.Constraint("Angle", 1, Q("-150 deg")),
    Sketcher.Constraint("DistanceX", 0, 2, -1, 1, Q("0.5 in")),
    Sketcher.Constraint("DistanceY", -1, 1, 2, 2, Q("0.5 in")),
    Sketcher.Constraint("DistanceX", 3, 1, 3, 2, Q("8.33563 mm")),
    Sketcher.Constraint("DistanceY", 0, 1, 0, 2, Q("9.623361 mm")),
    Sketcher.Constraint("DistanceY", 2, 2, 2, 1, Q("18.972969 mm")),
    Sketcher.Constraint("DistanceX", 1, 2, 4, 2, Q("8.379899 mm")),
    Sketcher.Constraint("DistanceY", 4, 2, 1, 2, Q("4.646301 mm")),
    Sketcher.Constraint("Distance", 5, Q("26.88292 mm")),
    Sketcher.Constraint("DistanceY", -1, 1, 0, 2, Q("56.013591 mm")),
])
pad6 = body6.newObject("PartDesign::Pad", "Pad005")
pad6.Profile = sketch6
pad6.Length = Q("1 in")
pad6.Midplane = True
body7 = doc.addObject("PartDesign::Body", "Body006")

sketch7 = body7.newObject("Sketcher::SketchObject", "Sketch006")
sketch7.AttachmentSupport = (doc.getObject("XY_Plane006"), [""])
sketch7.MapMode = "FlatFace"
sketch7.addGeometry([
    Part.ArcOfCircle(Part.Circle(V(0, 0, 0), V(0, 0, 1), 13), math.radians(90), math.radians(180)),
    Part.ArcOfCircle(Part.Circle(V(0, 0, 0), V(0, 0, 1), 13), math.radians(180), math.radians(270)),
    Part.ArcOfCircle(Part.Circle(V(0, 0, 0), V(0, 0, 1), 13), math.radians(-90), math.radians(0)),
    Part.ArcOfCircle(Part.Circle(V(0, 0, 0), V(0, 0, 1), 13), math.radians(0), math.radians(90)),
], False)
sketch7.addConstraint([
    Sketcher.Constraint("Tangent", 0, 2, 1, 1),
    Sketcher.Constraint("Tangent", 1, 2, 2, 1),
    Sketcher.Constraint("Tangent", 2, 2, 3, 1),
    Sketcher.Constraint("Tangent", 3, 2, 0, 1),
    Sketcher.Constraint("Coincident", 0, 3, -1, 1),
    Sketcher.Constraint("Equal", 0, 1),
    Sketcher.Constraint("PointOnObject", 0, 2, -1),
    Sketcher.Constraint("PointOnObject", 1, 2, -2),
    Sketcher.Constraint("PointOnObject", 2, 2, -1),
    Sketcher.Constraint("PointOnObject", 3, 2, -2),
    Sketcher.Constraint("Radius", 0, Q("0.5 in")),
])
pad7 = body7.newObject("PartDesign::Pad", "Pad006")
pad7.Profile = sketch7
pad7.Length = Q("1 in")
pad7.Midplane = True

doc.recompute()
